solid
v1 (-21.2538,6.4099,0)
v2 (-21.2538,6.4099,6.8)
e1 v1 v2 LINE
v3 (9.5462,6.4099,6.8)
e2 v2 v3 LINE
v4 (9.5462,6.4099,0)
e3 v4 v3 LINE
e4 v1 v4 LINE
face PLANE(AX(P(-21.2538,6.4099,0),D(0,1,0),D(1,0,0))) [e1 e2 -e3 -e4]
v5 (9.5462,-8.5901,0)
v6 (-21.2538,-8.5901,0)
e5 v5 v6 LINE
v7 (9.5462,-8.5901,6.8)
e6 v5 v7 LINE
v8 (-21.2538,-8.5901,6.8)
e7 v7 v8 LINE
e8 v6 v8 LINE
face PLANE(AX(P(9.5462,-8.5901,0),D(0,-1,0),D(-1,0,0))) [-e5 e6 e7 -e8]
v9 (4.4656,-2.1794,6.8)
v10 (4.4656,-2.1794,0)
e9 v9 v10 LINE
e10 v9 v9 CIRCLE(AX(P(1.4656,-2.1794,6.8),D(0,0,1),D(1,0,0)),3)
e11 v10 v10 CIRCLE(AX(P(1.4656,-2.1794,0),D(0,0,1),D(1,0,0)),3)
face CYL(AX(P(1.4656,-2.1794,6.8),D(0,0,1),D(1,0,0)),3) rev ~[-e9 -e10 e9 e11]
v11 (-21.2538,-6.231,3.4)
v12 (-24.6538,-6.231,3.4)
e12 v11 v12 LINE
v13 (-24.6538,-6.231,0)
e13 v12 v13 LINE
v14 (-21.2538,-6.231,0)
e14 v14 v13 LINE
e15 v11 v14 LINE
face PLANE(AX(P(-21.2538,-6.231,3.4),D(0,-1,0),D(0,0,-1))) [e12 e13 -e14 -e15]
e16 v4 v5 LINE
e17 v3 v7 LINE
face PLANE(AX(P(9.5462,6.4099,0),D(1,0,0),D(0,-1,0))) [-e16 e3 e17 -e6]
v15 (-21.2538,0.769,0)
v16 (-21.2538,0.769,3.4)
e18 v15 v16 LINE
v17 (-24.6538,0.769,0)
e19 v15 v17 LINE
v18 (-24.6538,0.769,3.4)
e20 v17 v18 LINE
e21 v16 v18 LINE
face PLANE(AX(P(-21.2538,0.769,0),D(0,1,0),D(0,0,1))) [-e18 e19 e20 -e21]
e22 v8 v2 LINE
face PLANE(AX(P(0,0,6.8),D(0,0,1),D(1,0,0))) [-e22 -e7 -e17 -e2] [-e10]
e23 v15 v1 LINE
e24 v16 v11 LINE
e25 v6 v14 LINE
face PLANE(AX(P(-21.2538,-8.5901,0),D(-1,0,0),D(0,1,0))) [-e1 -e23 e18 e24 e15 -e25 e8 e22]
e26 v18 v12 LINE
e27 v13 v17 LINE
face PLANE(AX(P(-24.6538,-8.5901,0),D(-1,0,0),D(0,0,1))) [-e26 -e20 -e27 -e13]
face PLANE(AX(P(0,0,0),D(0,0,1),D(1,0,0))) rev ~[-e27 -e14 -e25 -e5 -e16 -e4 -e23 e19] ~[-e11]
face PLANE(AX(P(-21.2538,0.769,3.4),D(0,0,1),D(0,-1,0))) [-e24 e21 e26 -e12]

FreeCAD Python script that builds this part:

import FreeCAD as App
import Part
import Sketcher


def add_polygon(sketch, points):
    """Adds a closed chain of lines whose ends are joined by coincident constraints."""
    first, n = sketch.GeometryCount, len(points)
    for a, b in zip(points, points[1:] + points[:1]):
        sketch.addGeometry(Part.LineSegment(App.Vector(*a, 0), App.Vector(*b, 0)), False)
    for i in range(n):
        sketch.addConstraint(Sketcher.Constraint("Coincident", first + i, 2, first + (i + 1) % n, 1))

doc = App.newDocument("Part")
body = doc.addObject("PartDesign::Body", "Body")

# Sketch on XY plane
sketch1 = doc.addObject("Sketcher::SketchObject", "Sketch")
body.addObject(sketch1)
sketch1.AttachmentSupport = (doc.XY_Plane, [""])
sketch1.MapMode = "FlatFace"
add_polygon(sketch1, [(9.5462, 6.4099), (-21.2538, 6.4099), (-21.2538, -8.5901), (9.5462, -8.5901)])  # lines 0-3
sketch1.addConstraint(Sketcher.Constraint("Horizontal", 0))
sketch1.addConstraint(Sketcher.Constraint("Vertical", 1))
sketch1.addConstraint(Sketcher.Constraint("Horizontal", 2))
sketch1.addConstraint(Sketcher.Constraint("Vertical", 3))
sketch1.addConstraint(Sketcher.Constraint("DistanceY", 1, 2, 1, 1, 15.0))
sketch1.addConstraint(Sketcher.Constraint("DistanceX", 0, 2, 0, 1, 30.8))
sketch1.addConstraint(Sketcher.Constraint("DistanceY", -1, 1, 0, 2, 6.41))
sketch1.addConstraint(Sketcher.Constraint("DistanceX", 0, 2, -1, 1, 21.2538))
pad1 = doc.addObject("PartDesign::Pad", "Pad")
body.addObject(pad1)
pad1.Profile = sketch1
pad1.Length = 6.8

# Sketch on XY plane
sketch2 = doc.addObject("Sketcher::SketchObject", "Sketch001")
body.addObject(sketch2)
sketch2.AttachmentSupport = (doc.XY_Plane, [""])
sketch2.MapMode = "FlatFace"
sketch2.AttachmentOffset = App.Placement(App.Vector(0, 0, 6.8), App.Rotation())
sketch2.addGeometry(Part.Circle(App.Vector(1.4656, -2.1794, 0), App.Vector(0, 0, 1), 3), False)
sketch2.addConstraint(Sketcher.Constraint("Diameter", 0, 6.0))
sketch2.addConstraint(Sketcher.Constraint("DistanceX", -1, 1, 0, 3, 1.4656))
sketch2.addConstraint(Sketcher.Constraint("DistanceY", 0, 3, -1, 1, 2.1794))
pocket1 = doc.addObject("PartDesign::Pocket", "Pocket")
body.addObject(pocket1)
pocket1.Profile = sketch2
pocket1.Length = 14

# Sketch on XY plane
sketch3 = doc.addObject("Sketcher::SketchObject", "Sketch002")
body.addObject(sketch3)
sketch3.AttachmentSupport = (doc.XY_Plane, [""])
sketch3.MapMode = "FlatFace"
add_polygon(sketch3, [(-5.4538, 2.5946), (-5.4538, -4.4054), (-8.8538, -4.4054), (-8.8538, 2.5946)])  # lines 0-3
sketch3.addConstraint(Sketcher.Constraint("Vertical", 0))
sketch3.addConstraint(Sketcher.Constraint("Horizontal", 1))
sketch3.addConstraint(Sketcher.Constraint("Vertical", 2))
sketch3.addConstraint(Sketcher.Constraint("Horizontal", 3))
sketch3.addConstraint(Sketcher.Constraint("DistanceY", 0, 2, 0, 1, 7.0))
sketch3.addConstraint(Sketcher.Constraint("DistanceX", 1, 2, 1, 1, 3.4))
sketch3.addConstraint(Sketcher.Constraint("DistanceX", 0, 2, -1, 1, 5.4538))
sketch3.addConstraint(Sketcher.Constraint("DistanceY", 0, 2, -1, 1, 4.4054))
pad2 = doc.addObject("PartDesign::Pad", "Pad001")
body.addObject(pad2)
pad2.Profile = sketch3
pad2.Length = 3.4

# Sketch on YZ plane
sketch4 = doc.addObject("Sketcher::SketchObject", "Sketch003")
body.addObject(sketch4)
sketch4.AttachmentSupport = (doc.YZ_Plane, [""])
sketch4.MapMode = "FlatFace"
sketch4.AttachmentOffset = App.Placement(App.Vector(0, 0, -21.2538), App.Rotation())
add_polygon(sketch4, [(-6.231, 0), (-6.231, 3.4), (0.769, 3.4), (0.769, 0)])  # lines 0-3
sketch4.addConstraint(Sketcher.Constraint("Vertical", 0))
sketch4.addConstraint(Sketcher.Constraint("Horizontal", 1))
sketch4.addConstraint(Sketcher.Constraint("Vertical", 2))
sketch4.addConstraint(Sketcher.Constraint("Horizontal", 3))
sketch4.addConstraint(Sketcher.Constraint("PointOnObject", 2, 2, -1))
sketch4.addConstraint(Sketcher.Constraint("DistanceX", 1, 1, 1, 2, 7.0))
sketch4.addConstraint(Sketcher.Constraint("DistanceY", 0, 1, 0, 2, 3.4))
sketch4.addConstraint(Sketcher.Constraint("DistanceX", 0, 2, -1, 1, 6.231))
pad3 = doc.addObject("PartDesign::Pad", "Pad002")
body.addObject(pad3)
pad3.Profile = sketch4
pad3.Length = 3.4
pad3.Reversed = True

doc.recompute()
